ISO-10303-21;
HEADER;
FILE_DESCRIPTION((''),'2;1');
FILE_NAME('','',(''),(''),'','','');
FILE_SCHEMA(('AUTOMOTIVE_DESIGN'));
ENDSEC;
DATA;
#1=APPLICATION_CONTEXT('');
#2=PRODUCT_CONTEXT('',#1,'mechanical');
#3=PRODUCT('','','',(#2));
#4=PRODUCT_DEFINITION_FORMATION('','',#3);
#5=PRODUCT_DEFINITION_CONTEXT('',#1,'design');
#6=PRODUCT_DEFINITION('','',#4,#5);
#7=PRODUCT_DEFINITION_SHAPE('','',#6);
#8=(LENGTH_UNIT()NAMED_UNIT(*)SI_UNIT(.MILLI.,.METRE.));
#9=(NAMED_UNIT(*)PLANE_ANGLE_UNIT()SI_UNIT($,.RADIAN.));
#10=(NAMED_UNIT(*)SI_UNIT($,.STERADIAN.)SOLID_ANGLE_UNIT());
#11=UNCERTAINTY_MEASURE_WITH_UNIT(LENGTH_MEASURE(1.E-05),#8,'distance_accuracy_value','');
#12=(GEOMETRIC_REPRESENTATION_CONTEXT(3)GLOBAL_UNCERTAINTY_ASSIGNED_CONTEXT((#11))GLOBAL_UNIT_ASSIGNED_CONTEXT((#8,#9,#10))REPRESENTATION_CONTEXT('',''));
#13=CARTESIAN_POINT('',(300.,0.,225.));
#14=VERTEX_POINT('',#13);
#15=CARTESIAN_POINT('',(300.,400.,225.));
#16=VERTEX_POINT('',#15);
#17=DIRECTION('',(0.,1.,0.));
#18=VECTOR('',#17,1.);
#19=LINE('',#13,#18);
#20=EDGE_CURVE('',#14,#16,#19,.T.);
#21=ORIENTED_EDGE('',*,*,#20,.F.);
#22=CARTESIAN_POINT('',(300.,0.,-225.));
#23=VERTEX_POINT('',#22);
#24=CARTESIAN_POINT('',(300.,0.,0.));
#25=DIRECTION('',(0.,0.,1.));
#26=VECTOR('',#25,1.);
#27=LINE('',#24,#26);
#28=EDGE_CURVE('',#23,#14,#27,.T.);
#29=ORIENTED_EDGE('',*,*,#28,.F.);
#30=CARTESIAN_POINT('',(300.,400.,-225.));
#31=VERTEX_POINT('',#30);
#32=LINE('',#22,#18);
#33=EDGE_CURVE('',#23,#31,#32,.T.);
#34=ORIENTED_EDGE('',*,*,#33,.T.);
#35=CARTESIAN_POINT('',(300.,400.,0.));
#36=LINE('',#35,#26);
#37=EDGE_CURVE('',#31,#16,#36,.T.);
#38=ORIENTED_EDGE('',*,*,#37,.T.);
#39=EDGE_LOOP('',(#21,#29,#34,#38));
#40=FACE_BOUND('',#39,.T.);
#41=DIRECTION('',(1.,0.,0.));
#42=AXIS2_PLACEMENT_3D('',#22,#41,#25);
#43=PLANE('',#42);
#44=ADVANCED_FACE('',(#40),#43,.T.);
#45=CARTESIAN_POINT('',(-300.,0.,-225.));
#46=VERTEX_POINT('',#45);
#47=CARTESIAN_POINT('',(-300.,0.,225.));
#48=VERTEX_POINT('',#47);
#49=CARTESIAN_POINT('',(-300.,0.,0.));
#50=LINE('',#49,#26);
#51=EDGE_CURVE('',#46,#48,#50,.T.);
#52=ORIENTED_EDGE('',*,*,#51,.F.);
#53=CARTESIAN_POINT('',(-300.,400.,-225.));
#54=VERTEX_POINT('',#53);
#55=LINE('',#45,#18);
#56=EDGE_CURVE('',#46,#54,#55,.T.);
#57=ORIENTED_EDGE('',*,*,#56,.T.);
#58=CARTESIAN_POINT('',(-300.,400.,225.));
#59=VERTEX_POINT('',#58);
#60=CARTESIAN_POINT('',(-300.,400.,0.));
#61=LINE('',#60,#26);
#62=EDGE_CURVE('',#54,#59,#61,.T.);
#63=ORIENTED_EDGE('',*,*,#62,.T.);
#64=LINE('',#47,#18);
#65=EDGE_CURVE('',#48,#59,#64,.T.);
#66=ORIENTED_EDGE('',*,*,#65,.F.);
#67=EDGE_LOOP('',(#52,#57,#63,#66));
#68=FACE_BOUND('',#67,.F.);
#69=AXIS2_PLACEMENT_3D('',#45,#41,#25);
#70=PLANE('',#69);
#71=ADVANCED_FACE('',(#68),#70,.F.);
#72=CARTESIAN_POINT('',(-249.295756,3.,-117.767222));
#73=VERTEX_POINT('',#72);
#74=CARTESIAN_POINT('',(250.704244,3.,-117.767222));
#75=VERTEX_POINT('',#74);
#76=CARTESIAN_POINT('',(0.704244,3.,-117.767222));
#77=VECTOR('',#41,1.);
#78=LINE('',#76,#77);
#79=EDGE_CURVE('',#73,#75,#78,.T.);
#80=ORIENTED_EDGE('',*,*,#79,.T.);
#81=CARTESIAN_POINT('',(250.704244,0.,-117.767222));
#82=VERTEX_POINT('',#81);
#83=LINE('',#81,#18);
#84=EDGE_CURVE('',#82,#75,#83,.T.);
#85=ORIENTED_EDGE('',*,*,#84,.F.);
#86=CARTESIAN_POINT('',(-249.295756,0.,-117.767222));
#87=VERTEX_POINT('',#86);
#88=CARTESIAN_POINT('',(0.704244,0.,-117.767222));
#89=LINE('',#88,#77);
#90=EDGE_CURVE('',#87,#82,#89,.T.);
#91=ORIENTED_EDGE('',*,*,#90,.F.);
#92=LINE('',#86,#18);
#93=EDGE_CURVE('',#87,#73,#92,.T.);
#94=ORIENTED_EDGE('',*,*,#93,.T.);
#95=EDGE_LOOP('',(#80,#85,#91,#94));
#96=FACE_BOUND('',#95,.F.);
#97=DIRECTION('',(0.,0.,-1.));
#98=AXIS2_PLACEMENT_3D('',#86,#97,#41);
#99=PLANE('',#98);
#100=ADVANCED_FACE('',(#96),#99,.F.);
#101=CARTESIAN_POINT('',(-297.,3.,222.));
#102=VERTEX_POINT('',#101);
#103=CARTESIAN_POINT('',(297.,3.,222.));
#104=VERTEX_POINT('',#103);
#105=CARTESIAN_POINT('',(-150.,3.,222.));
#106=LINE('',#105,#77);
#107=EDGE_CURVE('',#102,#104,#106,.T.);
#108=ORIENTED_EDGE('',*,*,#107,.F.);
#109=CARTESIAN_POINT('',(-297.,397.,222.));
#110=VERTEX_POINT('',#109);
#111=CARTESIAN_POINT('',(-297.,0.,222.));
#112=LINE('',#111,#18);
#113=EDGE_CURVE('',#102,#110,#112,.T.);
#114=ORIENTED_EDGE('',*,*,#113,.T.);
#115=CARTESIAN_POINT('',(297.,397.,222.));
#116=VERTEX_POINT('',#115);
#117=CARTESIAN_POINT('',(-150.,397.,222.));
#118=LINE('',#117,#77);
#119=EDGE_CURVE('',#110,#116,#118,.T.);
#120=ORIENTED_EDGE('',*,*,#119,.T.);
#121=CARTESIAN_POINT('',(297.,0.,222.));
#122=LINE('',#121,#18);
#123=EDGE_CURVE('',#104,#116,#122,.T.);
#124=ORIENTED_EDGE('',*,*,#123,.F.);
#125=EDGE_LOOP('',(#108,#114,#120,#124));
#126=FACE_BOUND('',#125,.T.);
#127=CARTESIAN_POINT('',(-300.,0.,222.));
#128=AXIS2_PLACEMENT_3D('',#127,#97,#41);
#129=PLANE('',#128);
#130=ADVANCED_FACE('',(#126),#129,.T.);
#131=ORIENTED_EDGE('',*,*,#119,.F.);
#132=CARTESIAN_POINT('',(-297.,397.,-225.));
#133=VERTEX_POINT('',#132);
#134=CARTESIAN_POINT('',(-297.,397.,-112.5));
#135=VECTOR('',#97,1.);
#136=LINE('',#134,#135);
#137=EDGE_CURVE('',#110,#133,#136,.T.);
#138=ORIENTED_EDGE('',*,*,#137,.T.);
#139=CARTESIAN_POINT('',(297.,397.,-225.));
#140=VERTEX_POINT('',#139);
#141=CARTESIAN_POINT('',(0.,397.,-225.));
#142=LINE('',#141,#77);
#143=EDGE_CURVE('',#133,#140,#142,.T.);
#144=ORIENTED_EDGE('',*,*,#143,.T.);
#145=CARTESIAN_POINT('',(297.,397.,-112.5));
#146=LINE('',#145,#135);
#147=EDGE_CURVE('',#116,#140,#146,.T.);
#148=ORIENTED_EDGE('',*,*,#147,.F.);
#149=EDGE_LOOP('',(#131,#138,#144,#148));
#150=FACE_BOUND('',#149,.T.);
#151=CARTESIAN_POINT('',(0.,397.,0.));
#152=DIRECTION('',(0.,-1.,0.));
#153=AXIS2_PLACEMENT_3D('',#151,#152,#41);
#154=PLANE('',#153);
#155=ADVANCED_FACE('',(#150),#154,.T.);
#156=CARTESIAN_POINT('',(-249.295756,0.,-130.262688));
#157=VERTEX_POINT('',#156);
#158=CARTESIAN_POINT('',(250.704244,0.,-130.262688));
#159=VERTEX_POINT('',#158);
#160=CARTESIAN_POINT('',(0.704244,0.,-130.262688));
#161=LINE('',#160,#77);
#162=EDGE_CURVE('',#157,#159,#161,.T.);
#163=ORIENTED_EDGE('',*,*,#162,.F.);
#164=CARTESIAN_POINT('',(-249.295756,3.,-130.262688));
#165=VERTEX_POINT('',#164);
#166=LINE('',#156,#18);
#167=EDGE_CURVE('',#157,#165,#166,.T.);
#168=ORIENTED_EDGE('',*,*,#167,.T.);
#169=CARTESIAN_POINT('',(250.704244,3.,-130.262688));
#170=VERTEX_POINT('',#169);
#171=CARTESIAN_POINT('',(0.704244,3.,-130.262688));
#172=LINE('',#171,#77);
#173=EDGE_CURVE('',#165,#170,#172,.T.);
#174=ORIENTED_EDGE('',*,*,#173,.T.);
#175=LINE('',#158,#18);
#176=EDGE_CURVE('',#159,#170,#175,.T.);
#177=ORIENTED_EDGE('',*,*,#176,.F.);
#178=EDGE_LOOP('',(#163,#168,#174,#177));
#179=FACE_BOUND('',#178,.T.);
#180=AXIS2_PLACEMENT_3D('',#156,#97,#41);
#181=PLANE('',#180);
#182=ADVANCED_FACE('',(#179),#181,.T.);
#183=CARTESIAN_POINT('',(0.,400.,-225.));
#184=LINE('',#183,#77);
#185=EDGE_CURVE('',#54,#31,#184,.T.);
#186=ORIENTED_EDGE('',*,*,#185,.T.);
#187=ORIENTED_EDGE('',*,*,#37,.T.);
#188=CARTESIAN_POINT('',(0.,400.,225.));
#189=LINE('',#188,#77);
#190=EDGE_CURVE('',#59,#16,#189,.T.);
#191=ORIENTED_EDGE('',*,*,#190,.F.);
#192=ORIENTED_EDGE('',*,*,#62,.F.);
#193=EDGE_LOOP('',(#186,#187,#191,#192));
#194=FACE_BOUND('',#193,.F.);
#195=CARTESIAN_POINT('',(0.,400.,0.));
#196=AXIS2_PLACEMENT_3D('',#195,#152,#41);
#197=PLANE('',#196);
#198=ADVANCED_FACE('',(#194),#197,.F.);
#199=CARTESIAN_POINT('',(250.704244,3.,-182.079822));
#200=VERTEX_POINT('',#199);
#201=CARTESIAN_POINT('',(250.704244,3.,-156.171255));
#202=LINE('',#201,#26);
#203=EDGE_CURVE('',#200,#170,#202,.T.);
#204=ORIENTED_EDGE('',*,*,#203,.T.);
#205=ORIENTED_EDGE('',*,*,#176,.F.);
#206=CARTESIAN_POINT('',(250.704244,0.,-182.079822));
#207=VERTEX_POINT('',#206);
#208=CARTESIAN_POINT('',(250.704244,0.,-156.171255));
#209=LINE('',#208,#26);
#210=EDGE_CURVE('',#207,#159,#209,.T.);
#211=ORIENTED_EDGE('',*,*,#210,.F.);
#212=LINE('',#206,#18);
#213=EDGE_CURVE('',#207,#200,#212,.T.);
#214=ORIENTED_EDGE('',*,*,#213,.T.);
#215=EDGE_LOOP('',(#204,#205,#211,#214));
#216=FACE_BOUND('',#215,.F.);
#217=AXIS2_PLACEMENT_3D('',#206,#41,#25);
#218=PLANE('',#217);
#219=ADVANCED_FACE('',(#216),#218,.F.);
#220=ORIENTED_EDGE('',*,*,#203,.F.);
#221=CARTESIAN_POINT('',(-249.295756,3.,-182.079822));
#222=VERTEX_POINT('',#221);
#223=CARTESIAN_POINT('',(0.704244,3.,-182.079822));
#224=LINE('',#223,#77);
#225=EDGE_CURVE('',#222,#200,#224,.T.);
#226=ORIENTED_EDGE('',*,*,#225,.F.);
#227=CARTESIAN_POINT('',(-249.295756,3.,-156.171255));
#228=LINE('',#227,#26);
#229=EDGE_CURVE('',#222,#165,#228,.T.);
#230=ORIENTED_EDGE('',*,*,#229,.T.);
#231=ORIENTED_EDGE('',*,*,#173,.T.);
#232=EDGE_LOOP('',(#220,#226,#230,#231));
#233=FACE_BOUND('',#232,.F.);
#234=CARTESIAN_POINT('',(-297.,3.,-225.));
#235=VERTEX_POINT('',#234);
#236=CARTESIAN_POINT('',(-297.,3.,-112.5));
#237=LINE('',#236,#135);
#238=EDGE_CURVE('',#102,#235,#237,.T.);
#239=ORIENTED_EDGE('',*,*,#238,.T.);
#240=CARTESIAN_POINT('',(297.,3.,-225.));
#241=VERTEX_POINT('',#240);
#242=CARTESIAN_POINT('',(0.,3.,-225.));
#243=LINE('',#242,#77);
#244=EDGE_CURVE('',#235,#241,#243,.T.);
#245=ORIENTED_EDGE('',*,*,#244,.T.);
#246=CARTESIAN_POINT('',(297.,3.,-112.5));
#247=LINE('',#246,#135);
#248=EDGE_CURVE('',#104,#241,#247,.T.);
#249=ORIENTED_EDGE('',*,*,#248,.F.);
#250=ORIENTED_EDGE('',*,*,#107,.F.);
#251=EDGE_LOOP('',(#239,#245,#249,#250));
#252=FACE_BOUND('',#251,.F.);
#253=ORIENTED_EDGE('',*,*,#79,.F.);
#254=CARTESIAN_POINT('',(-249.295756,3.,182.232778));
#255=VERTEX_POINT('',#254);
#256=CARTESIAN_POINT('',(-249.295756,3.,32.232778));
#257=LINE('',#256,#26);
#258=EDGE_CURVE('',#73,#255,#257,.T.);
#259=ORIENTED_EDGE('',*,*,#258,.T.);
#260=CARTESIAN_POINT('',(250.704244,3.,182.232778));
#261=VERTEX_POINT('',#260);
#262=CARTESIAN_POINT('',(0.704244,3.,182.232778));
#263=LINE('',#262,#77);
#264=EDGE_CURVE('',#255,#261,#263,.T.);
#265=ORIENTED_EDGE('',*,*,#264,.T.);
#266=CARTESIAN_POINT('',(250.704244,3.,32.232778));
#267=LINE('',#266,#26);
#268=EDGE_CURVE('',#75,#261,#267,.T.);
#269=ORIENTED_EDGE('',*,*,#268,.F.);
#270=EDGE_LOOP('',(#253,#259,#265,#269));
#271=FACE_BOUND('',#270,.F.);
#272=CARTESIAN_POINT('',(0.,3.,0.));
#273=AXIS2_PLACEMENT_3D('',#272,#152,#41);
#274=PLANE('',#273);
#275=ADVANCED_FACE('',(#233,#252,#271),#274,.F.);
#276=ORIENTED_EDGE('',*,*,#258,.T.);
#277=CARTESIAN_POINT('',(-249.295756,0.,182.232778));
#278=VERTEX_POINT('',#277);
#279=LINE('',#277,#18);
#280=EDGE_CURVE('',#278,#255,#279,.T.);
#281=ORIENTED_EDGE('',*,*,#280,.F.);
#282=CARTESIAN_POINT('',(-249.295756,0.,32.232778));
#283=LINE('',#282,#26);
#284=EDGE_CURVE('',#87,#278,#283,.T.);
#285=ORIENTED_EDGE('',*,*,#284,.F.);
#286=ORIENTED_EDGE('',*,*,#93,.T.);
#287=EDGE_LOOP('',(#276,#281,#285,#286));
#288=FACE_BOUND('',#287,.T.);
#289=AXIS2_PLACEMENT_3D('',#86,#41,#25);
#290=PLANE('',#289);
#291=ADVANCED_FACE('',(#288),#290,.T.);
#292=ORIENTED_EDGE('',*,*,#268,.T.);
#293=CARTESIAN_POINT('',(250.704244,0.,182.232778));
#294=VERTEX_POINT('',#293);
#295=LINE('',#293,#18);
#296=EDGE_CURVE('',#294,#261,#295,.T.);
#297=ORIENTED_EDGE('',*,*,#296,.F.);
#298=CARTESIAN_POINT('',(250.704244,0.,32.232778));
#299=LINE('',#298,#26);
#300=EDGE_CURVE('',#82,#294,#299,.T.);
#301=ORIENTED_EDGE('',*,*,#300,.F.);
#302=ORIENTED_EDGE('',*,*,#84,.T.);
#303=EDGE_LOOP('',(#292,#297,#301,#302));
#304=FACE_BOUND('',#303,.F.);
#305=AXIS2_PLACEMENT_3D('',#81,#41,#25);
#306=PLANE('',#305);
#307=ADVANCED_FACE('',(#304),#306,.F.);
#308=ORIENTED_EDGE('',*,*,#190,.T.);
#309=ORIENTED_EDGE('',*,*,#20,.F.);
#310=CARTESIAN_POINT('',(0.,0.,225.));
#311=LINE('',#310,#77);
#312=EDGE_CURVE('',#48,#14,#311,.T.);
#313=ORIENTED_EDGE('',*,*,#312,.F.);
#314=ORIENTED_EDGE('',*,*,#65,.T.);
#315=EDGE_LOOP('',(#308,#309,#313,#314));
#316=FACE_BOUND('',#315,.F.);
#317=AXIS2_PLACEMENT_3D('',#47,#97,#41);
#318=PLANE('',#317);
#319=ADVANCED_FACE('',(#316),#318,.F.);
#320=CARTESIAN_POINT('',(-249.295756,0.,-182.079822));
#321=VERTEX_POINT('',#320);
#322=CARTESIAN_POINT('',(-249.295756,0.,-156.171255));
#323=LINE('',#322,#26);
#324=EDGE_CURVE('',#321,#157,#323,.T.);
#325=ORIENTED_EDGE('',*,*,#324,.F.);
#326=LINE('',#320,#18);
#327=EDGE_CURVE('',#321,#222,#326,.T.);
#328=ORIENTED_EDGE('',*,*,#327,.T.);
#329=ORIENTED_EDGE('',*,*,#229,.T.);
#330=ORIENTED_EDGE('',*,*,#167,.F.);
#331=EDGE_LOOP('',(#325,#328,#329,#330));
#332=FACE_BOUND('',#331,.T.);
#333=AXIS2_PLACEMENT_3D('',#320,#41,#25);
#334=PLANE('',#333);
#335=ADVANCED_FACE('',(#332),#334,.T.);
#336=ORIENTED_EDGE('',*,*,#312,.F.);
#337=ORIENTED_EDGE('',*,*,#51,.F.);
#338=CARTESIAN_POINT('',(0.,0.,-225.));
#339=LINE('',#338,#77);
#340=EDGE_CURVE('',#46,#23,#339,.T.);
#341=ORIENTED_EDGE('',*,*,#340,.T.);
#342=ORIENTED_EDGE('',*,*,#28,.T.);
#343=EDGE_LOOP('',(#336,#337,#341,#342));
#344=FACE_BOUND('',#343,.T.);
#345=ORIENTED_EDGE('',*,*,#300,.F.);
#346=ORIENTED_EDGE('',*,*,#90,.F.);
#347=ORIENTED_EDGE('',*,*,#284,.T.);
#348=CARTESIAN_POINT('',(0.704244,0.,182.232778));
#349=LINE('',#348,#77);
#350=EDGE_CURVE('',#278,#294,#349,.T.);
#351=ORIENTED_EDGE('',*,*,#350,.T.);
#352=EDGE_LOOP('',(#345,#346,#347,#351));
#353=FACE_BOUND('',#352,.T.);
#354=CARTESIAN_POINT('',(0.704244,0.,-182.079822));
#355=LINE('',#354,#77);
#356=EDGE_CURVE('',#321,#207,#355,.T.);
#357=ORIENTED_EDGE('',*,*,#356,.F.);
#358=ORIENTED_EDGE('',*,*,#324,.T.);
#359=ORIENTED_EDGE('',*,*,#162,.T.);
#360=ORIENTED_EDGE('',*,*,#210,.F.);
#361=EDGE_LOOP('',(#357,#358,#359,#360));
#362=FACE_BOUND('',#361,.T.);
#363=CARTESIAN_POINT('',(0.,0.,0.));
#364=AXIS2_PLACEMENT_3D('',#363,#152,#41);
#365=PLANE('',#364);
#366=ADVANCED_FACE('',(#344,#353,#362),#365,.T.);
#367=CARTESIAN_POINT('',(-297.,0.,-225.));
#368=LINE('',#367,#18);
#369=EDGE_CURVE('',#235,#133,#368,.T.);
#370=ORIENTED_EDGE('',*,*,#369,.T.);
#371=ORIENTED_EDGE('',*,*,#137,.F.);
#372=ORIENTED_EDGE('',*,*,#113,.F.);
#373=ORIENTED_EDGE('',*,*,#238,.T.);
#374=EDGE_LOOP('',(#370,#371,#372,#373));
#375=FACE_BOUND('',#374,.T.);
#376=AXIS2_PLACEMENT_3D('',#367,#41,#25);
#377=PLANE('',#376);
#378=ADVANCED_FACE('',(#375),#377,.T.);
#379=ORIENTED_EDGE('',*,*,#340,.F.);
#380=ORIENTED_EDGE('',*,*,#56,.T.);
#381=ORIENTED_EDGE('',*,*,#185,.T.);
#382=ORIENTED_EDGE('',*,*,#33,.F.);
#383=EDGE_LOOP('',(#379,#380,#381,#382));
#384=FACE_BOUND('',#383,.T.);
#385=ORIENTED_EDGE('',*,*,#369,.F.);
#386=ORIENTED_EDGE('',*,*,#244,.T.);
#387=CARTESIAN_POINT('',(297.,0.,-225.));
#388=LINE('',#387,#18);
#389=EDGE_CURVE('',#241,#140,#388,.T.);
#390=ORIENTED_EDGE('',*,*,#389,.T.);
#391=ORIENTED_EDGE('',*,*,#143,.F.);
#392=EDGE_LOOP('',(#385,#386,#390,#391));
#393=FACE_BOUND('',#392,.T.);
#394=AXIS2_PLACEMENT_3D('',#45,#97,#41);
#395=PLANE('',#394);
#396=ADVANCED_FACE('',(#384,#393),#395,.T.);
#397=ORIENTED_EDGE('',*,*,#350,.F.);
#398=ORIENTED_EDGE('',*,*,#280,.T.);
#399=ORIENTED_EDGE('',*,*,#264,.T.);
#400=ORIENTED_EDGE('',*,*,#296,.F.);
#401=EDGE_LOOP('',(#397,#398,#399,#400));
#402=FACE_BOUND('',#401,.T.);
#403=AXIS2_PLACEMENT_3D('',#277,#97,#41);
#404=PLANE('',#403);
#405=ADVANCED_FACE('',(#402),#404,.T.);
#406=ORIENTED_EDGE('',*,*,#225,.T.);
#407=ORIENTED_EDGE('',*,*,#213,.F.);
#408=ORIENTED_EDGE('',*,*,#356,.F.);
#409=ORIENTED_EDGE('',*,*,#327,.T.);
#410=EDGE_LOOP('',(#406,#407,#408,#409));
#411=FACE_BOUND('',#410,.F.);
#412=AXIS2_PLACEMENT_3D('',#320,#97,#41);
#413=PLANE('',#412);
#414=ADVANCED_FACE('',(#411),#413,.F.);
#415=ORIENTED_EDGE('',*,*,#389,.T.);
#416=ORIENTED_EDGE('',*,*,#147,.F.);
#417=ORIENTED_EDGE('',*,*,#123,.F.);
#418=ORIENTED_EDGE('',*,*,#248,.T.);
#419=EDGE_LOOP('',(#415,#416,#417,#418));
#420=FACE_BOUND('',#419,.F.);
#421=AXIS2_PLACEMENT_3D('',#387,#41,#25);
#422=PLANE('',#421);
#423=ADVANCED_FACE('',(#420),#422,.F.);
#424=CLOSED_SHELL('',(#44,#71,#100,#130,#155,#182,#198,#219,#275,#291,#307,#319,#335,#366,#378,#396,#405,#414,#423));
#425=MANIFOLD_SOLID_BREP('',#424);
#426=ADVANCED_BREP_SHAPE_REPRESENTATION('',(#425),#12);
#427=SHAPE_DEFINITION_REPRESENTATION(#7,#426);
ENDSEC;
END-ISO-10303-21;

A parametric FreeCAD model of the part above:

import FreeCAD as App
import Part
import Sketcher
from FreeCAD import Vector
Q = App.Units.Quantity


def faces_at(feature, points):
    """Names of the faces that lie closest to the given points."""
    faces = feature.Shape.Faces
    near = lambda p: min(range(len(faces)), key=lambda i: faces[i].distToShape(Part.Vertex(*p))[0])
    return sorted({f"Face{near(p) + 1}" for p in points})


def add_polygon(sketch, points):
    """Adds a closed chain of lines whose ends are joined by coincident constraints."""
    first, n = sketch.GeometryCount, len(points)
    for a, b in zip(points, points[1:] + points[:1]):
        sketch.addGeometry(Part.LineSegment(App.Vector(*a, 0), App.Vector(*b, 0)), False)
    for i in range(n):
        sketch.addConstraint(Sketcher.Constraint("Coincident", first + i, 2, first + (i + 1) % n, 1))

doc = App.newDocument("Part")
body = doc.addObject("PartDesign::Body", "Body")

# Sketch on XZ plane
sketch1 = doc.addObject("Sketcher::SketchObject", "Sketch")
body.addObject(sketch1)
sketch1.AttachmentSupport = (doc.XZ_Plane, [""])
sketch1.MapMode = "FlatFace"
add_polygon(sketch1, [(-300, 225), (-300, -225), (300, -225), (300, 225)])  # lines 0-3
sketch1.addConstraint(Sketcher.Constraint("Vertical", 0))
sketch1.addConstraint(Sketcher.Constraint("Horizontal", 1))
sketch1.addConstraint(Sketcher.Constraint("Vertical", 2))
sketch1.addConstraint(Sketcher.Constraint("Horizontal", 3))
sketch1.addConstraint(Sketcher.Constraint("Symmetric", 0, 2, 2, 2, -1, 1))
sketch1.addConstraint(Sketcher.Constraint("DistanceX", 1, 1, 1, 2, Q("600 mm")))
sketch1.addConstraint(Sketcher.Constraint("DistanceY", 0, 2, 0, 1, Q("450 mm")))
pad1 = doc.addObject("PartDesign::Pad", "Pad")
body.addObject(pad1)
pad1.Profile = sketch1
pad1.Length = 400
pad1.Reversed = True
doc.recompute()

thickness = doc.addObject("PartDesign::Thickness", "Thickness")
body.addObject(thickness)
thickness.Base = (pad1, faces_at(pad1, [(0, 200, -225)]))
thickness.Value = 3
thickness.Reversed = True
thickness.Join = "Arc"

# Sketch on XZ plane
sketch2 = doc.addObject("Sketcher::SketchObject", "Sketch001")
body.addObject(sketch2)
sketch2.AttachmentSupport = (doc.XZ_Plane, [""])
sketch2.MapMode = "FlatFace"
add_polygon(sketch2, [(-249, 182), (-249, -118), (251, -118), (251, 182)])  # lines 0-3
add_polygon(sketch2, [(-249, -130), (-249, -182), (251, -182), (251, -130)])  # lines 4-7
sketch2.addConstraint(Sketcher.Constraint("Vertical", 0))
sketch2.addConstraint(Sketcher.Constraint("Horizontal", 1))
sketch2.addConstraint(Sketcher.Constraint("Vertical", 2))
sketch2.addConstraint(Sketcher.Constraint("Horizontal", 3))
sketch2.addConstraint(Sketcher.Constraint("Vertical", 4))
sketch2.addConstraint(Sketcher.Constraint("Horizontal", 5))
sketch2.addConstraint(Sketcher.Constraint("Vertical", 6))
sketch2.addConstraint(Sketcher.Constraint("Horizontal", 7))
sketch2.addConstraint(Sketcher.Constraint("Vertical", 3, 2, 4, 2))
sketch2.addConstraint(Sketcher.Constraint("Vertical", 2, 2, 5, 2))
sketch2.addConstraint(Sketcher.Constraint("DistanceX", 1, 1, 1, 2, Q("500 mm")))
sketch2.addConstraint(Sketcher.Constraint("DistanceY", 0, 2, 0, 1, Q("300 mm")))
sketch2.addConstraint(Sketcher.Constraint("DistanceY", 4, 2, 0, 2, Q("64.3126 mm")))
sketch2.addConstraint(Sketcher.Constraint("DistanceY", 4, 2, 4, 1, Q("51.817134 mm")))
sketch2.addConstraint(Sketcher.Constraint("DistanceY", -1, 1, 2, 2, Q("182.232778 mm")))
sketch2.addConstraint(Sketcher.Constraint("DistanceX", 0, 2, -1, 1, Q("249.295756 mm")))
pocket1 = doc.addObject("PartDesign::Pocket", "Pocket")
body.addObject(pocket1)
pocket1.Profile = sketch2
pocket1.Length = 3

doc.recompute()
